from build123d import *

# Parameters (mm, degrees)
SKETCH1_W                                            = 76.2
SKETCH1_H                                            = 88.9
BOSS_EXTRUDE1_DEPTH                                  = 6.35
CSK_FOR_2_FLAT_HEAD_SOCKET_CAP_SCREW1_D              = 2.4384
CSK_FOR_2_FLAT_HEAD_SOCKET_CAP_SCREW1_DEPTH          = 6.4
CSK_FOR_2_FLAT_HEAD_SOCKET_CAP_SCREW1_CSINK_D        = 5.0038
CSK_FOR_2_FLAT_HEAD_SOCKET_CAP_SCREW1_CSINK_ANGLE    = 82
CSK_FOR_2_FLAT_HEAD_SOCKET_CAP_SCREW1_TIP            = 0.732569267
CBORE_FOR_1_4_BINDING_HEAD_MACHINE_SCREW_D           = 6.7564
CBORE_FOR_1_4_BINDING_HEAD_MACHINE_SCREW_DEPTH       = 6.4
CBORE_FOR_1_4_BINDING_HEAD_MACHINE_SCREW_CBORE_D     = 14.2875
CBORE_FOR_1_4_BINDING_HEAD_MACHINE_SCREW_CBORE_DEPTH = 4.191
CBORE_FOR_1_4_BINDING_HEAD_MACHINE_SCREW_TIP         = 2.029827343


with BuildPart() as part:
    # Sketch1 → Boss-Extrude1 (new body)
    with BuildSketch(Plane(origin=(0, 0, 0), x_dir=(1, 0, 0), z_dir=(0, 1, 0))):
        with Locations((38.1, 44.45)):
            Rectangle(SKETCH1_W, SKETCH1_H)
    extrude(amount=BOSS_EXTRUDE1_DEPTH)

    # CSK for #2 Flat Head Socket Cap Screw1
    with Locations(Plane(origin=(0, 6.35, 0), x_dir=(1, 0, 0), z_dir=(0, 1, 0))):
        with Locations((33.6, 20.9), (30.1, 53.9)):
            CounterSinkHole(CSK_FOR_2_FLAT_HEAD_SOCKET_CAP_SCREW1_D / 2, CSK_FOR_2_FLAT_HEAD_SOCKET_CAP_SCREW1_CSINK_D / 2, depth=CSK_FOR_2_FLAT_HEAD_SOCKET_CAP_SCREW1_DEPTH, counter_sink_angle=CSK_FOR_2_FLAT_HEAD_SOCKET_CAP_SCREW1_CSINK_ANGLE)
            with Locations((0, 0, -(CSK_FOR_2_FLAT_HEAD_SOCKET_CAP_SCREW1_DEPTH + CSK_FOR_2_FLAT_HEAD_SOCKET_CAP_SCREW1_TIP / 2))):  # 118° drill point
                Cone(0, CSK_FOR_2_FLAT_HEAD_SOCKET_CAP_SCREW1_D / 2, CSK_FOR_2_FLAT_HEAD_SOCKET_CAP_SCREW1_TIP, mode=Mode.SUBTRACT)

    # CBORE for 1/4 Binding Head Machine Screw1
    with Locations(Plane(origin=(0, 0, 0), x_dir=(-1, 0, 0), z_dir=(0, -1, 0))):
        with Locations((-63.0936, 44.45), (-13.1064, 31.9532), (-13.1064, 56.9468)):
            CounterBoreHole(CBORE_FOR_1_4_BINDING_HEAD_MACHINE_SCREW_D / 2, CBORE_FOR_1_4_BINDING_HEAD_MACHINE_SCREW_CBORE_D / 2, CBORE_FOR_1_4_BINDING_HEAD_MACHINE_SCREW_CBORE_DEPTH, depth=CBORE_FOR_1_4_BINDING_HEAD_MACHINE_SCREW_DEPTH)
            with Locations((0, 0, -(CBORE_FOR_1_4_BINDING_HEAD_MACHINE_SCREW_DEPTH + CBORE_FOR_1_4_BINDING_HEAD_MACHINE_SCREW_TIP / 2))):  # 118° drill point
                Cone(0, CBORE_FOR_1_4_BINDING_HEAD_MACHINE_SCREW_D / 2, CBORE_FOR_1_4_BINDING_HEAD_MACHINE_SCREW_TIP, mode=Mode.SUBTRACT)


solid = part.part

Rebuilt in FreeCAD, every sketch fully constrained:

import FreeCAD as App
import Part
import Sketcher

V = App.Vector
Q = App.Units.Quantity


def add_polygon(sketch, points):
    """Adds a closed chain of lines whose ends are joined by coincident constraints."""
    first, n = sketch.GeometryCount, len(points)
    for a, b in zip(points, points[1:] + points[:1]):
        sketch.addGeometry(Part.LineSegment(App.Vector(*a, 0), App.Vector(*b, 0)), False)
    for i in range(n):
        sketch.addConstraint(Sketcher.Constraint("Coincident", first + i, 2, first + (i + 1) % n, 1))

doc = App.newDocument("Part")
body = doc.addObject("PartDesign::Body", "Body")

# Sketch on XZ plane
sketch1 = body.newObject("Sketcher::SketchObject", "Sketch")
sketch1.AttachmentSupport = (doc.getObject("XZ_Plane"), [""])
sketch1.MapMode = "FlatFace"
add_polygon(sketch1, [(0, -89), (0, 0), (76, 0), (76, -89)])  # lines 0-3
sketch1.addConstraint([
    Sketcher.Constraint("Vertical", 0),
    Sketcher.Constraint("Horizontal", 1),
    Sketcher.Constraint("Vertical", 2),
    Sketcher.Constraint("Horizontal", 3),
    Sketcher.Constraint("Coincident", 0, 2, -1, 1),
    Sketcher.Constraint("DistanceX", 1, 1, 1, 2, Q("3 in")),
    Sketcher.Constraint("DistanceY", 0, 1, 0, 2, Q("3.5 in")),
])
pad1 = body.newObject("PartDesign::Pad", "Pad")
pad1.Profile = sketch1
pad1.Length = Q("0.25 in")
pad1.Reversed = True

# Sketch on XZ plane
sketch2 = body.newObject("Sketcher::SketchObject", "Sketch001")
sketch2.AttachmentSupport = (doc.getObject("XZ_Plane"), [""])
sketch2.MapMode = "FlatFace"
sketch2.AttachmentOffset = App.Placement(V(0, 0, -0.25 * 25.4), App.Rotation())
sketch2.addGeometry([
    Part.Circle(V(33.6, -20.9, 0), V(0, 0, 1), 1.2),
    Part.Circle(V(30.1, -53.9, 0), V(0, 0, 1), 1.2),
], False)
sketch2.addConstraint([
    Sketcher.Constraint("Equal", 0, 1),
    Sketcher.Constraint("Diameter", 0, Q("0.096 in")),
    Sketcher.Constraint("DistanceX", -1, 1, 0, 3, 33.6),
    Sketcher.Constraint("DistanceY", 0, 3, -1, 1, 20.9),
    Sketcher.Constraint("DistanceX", -1, 1, 1, 3, 30.1),
    Sketcher.Constraint("DistanceY", 1, 3, -1, 1, 53.9),
])
doc.recompute()
hole = body.newObject("PartDesign::Hole", "Hole")
hole.Profile = sketch2
hole.ThreadType = "None"
hole.Diameter = Q("0.096 in")
hole.DepthType = "Dimension"
hole.Depth = 6.4
hole.DrillPoint = "Angled"
hole.DrillPointAngle = 118
hole.HoleCutType = "Countersink"
hole.HoleCutDiameter = Q("0.197 in")
hole.HoleCutCountersinkAngle = 82
hole.Reversed = True

# Sketch on XZ plane
sketch3 = body.newObject("Sketcher::SketchObject", "Sketch002")
sketch3.AttachmentSupport = (doc.getObject("XZ_Plane"), [""])
sketch3.MapMode = "FlatFace"
sketch3.addGeometry([
    Part.Circle(V(63.1, -44.5, 0), V(0, 0, 1), 3.4),
    Part.Circle(V(13.1, -32, 0), V(0, 0, 1), 3.4),
    Part.Circle(V(13.1, -56.9, 0), V(0, 0, 1), 3.4),
], False)
sketch3.addConstraint([
    Sketcher.Constraint("Equal", 0, 1),
    Sketcher.Constraint("Equal", 1, 2),
    Sketcher.Constraint("Vertical", 1, 3, 2, 3),
    Sketcher.Constraint("Diameter", 0, Q("0.266 in")),
    Sketcher.Constraint("DistanceY", 0, 3, -1, 1, Q("1.75 in")),
    Sketcher.Constraint("DistanceX", -1, 1, 0, 3, Q("2.484 in")),
    Sketcher.Constraint("DistanceX", -1, 1, 1, 3, Q("0.516 in")),
    Sketcher.Constraint("DistanceY", 1, 3, -1, 1, Q("1.258 in")),
    Sketcher.Constraint("DistanceY", 2, 3, -1, 1, Q("2.242 in")),
])
doc.recompute()
hole2 = body.newObject("PartDesign::Hole", "Hole001")
hole2.Profile = sketch3
hole2.ThreadType = "None"
hole2.Diameter = Q("0.266 in")
hole2.DepthType = "Dimension"
hole2.Depth = 6.4
hole2.DrillPoint = "Angled"
hole2.DrillPointAngle = 118
hole2.HoleCutType = "Counterbore"
hole2.HoleCutDiameter = Q("0.5625 in")
hole2.HoleCutDepth = Q("0.165 in")

doc.recompute()
